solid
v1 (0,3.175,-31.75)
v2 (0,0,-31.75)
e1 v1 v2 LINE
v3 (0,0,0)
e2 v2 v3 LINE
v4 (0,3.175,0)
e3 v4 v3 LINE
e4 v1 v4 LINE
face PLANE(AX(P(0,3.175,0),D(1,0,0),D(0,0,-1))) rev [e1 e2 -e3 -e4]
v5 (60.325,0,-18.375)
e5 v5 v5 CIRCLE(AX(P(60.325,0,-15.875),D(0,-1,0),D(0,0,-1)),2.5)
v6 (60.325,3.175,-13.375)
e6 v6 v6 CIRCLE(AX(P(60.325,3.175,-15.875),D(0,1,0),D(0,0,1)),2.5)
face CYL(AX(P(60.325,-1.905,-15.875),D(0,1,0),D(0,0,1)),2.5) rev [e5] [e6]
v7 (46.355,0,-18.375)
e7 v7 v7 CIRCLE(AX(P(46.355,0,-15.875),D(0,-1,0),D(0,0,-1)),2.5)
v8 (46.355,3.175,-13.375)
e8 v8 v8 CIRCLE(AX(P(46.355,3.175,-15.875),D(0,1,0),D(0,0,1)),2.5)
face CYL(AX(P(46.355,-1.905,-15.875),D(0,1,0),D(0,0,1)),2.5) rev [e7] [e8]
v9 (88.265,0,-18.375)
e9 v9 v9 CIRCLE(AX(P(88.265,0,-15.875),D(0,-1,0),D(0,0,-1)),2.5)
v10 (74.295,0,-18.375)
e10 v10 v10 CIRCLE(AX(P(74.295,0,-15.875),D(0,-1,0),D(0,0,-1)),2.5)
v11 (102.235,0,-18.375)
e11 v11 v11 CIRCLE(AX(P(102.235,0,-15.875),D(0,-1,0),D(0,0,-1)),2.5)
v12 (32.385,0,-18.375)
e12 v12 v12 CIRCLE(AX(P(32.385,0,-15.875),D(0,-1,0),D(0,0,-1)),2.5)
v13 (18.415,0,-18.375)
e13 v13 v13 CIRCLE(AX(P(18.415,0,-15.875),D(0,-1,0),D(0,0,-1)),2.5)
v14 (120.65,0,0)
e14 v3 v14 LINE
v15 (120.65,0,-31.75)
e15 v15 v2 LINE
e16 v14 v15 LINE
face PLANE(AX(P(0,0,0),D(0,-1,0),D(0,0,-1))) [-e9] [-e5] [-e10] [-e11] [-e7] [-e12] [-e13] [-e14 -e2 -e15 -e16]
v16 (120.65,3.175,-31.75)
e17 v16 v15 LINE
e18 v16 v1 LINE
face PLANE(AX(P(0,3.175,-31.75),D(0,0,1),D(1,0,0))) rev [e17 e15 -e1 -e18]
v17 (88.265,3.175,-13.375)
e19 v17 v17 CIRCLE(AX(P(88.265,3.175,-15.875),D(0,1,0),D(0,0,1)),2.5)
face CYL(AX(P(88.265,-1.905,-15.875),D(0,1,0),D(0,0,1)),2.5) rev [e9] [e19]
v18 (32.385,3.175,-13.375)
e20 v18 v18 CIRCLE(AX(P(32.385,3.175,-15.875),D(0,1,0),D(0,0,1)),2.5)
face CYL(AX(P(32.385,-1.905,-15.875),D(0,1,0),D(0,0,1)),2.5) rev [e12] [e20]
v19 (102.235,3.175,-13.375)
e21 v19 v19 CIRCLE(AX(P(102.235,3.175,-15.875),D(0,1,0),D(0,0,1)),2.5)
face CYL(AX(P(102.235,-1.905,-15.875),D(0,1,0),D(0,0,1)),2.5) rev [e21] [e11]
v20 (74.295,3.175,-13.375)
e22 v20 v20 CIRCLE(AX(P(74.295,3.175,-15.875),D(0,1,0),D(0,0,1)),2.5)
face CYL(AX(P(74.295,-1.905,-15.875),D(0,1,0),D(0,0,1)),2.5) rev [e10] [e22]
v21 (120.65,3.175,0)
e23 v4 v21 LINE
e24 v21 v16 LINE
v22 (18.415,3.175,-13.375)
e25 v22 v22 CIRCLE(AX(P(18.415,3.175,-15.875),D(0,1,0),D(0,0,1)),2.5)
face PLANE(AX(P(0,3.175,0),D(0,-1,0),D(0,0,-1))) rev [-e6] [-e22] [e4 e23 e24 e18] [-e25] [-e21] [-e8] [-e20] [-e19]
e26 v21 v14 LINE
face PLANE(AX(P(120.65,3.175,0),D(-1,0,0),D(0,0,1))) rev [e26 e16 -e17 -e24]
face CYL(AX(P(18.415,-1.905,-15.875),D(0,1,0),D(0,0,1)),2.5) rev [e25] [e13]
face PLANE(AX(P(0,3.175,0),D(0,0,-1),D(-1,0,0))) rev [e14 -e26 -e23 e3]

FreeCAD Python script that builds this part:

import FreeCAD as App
import Part
import Sketcher
from FreeCAD import Vector
Q = App.Units.Quantity


def add_polygon(sketch, points):
    """Adds a closed chain of lines whose ends are joined by coincident constraints."""
    first, n = sketch.GeometryCount, len(points)
    for a, b in zip(points, points[1:] + points[:1]):
        sketch.addGeometry(Part.LineSegment(App.Vector(*a, 0), App.Vector(*b, 0)), False)
    for i in range(n):
        sketch.addConstraint(Sketcher.Constraint("Coincident", first + i, 2, first + (i + 1) % n, 1))

doc = App.newDocument("Part")
params = doc.addObject("Spreadsheet::Sheet", "Params")
for row, (alias, value) in enumerate([
    ("sketch1_width", "4.75 in"),
    ("sketch1_height", "1.25 in"),
    ("pad1_length", "0.125 in"),
    ("pocket1_length", "0.2 in"),
    ("linearpattern_pitch", "0.55 in"),
    ("linearpattern2_pitch", "0.55 in"),
], start=1):
    params.set(f"A{row}", alias)
    params.set(f"B{row}", "=" + value)
    params.setAlias(f"B{row}", alias)

body = doc.addObject("PartDesign::Body", "Body")

sketch1 = doc.addObject("Sketcher::SketchObject", "Sketch")
body.addObject(sketch1)
sketch1.AttachmentSupport = (doc.XZ_Plane, [""])
sketch1.MapMode = "FlatFace"
add_polygon(sketch1, [(0, -31.75), (0, 0), (120.65, 0), (120.65, -31.75)])
sketch1.addConstraint([
    Sketcher.Constraint("Vertical", 0),
    Sketcher.Constraint("Horizontal", 1),
    Sketcher.Constraint("Vertical", 2),
    Sketcher.Constraint("Horizontal", 3),
    Sketcher.Constraint("Coincident", 0, 2, -1, 1),
    Sketcher.Constraint("DistanceX", 1, 1, 1, 2, Q("4.75 in")),
    Sketcher.Constraint("DistanceY", 0, 1, 0, 2, Q("1.25 in")),
])
sketch1.setExpression("Constraints[9]", "Params.sketch1_width")
sketch1.setExpression("Constraints[10]", "Params.sketch1_height")
pad1 = doc.addObject("PartDesign::Pad", "Pad")
body.addObject(pad1)
pad1.Profile = sketch1
pad1.setExpression("Length", "Params.pad1_length")
pad1.Reversed = True

sketch2 = doc.addObject("Sketcher::SketchObject", "Sketch001")
body.addObject(sketch2)
sketch2.AttachmentSupport = (doc.XZ_Plane, [""])
sketch2.MapMode = "FlatFace"
sketch2.AttachmentOffset = App.Placement(Vector(0, 0, -0.125 * 25.4), App.Rotation())
sketch2.addGeometry(Part.Circle(Vector(60.325, -15.875, 0), Vector(0, 0, 1), 2.5), False)
sketch2.addConstraint([
    Sketcher.Constraint("Diameter", 0, 5.0),
    Sketcher.Constraint("DistanceX", -1, 1, 0, 3, Q("2.375 in")),
    Sketcher.Constraint("DistanceY", 0, 3, -1, 1, Q("0.625 in")),
])
pocket1 = doc.addObject("PartDesign::Pocket", "Pocket")
body.addObject(pocket1)
pocket1.Profile = sketch2
pocket1.setExpression("Length", "Params.pocket1_length")
pocket1.Reversed = True
doc.recompute()

linearpattern = doc.addObject("PartDesign::LinearPattern", "LinearPattern")
body.addObject(linearpattern)
linearpattern.Originals = [pocket1]
linearpattern.Direction = (doc.X_Axis, [""])
linearpattern.Mode = "offset"
linearpattern.setExpression("Offset", "Params.linearpattern_pitch")
linearpattern.Occurrences = 4
body.Tip = linearpattern
doc.recompute()

linearpattern2 = doc.addObject("PartDesign::LinearPattern", "LinearPattern001")
body.addObject(linearpattern2)
linearpattern2.Originals = [pocket1]
linearpattern2.Direction = (doc.X_Axis, [""])
linearpattern2.Mode = "offset"
linearpattern2.setExpression("Offset", "Params.linearpattern2_pitch")
linearpattern2.Occurrences = 4
linearpattern2.Reversed = True
body.Tip = linearpattern2

doc.recompute()
